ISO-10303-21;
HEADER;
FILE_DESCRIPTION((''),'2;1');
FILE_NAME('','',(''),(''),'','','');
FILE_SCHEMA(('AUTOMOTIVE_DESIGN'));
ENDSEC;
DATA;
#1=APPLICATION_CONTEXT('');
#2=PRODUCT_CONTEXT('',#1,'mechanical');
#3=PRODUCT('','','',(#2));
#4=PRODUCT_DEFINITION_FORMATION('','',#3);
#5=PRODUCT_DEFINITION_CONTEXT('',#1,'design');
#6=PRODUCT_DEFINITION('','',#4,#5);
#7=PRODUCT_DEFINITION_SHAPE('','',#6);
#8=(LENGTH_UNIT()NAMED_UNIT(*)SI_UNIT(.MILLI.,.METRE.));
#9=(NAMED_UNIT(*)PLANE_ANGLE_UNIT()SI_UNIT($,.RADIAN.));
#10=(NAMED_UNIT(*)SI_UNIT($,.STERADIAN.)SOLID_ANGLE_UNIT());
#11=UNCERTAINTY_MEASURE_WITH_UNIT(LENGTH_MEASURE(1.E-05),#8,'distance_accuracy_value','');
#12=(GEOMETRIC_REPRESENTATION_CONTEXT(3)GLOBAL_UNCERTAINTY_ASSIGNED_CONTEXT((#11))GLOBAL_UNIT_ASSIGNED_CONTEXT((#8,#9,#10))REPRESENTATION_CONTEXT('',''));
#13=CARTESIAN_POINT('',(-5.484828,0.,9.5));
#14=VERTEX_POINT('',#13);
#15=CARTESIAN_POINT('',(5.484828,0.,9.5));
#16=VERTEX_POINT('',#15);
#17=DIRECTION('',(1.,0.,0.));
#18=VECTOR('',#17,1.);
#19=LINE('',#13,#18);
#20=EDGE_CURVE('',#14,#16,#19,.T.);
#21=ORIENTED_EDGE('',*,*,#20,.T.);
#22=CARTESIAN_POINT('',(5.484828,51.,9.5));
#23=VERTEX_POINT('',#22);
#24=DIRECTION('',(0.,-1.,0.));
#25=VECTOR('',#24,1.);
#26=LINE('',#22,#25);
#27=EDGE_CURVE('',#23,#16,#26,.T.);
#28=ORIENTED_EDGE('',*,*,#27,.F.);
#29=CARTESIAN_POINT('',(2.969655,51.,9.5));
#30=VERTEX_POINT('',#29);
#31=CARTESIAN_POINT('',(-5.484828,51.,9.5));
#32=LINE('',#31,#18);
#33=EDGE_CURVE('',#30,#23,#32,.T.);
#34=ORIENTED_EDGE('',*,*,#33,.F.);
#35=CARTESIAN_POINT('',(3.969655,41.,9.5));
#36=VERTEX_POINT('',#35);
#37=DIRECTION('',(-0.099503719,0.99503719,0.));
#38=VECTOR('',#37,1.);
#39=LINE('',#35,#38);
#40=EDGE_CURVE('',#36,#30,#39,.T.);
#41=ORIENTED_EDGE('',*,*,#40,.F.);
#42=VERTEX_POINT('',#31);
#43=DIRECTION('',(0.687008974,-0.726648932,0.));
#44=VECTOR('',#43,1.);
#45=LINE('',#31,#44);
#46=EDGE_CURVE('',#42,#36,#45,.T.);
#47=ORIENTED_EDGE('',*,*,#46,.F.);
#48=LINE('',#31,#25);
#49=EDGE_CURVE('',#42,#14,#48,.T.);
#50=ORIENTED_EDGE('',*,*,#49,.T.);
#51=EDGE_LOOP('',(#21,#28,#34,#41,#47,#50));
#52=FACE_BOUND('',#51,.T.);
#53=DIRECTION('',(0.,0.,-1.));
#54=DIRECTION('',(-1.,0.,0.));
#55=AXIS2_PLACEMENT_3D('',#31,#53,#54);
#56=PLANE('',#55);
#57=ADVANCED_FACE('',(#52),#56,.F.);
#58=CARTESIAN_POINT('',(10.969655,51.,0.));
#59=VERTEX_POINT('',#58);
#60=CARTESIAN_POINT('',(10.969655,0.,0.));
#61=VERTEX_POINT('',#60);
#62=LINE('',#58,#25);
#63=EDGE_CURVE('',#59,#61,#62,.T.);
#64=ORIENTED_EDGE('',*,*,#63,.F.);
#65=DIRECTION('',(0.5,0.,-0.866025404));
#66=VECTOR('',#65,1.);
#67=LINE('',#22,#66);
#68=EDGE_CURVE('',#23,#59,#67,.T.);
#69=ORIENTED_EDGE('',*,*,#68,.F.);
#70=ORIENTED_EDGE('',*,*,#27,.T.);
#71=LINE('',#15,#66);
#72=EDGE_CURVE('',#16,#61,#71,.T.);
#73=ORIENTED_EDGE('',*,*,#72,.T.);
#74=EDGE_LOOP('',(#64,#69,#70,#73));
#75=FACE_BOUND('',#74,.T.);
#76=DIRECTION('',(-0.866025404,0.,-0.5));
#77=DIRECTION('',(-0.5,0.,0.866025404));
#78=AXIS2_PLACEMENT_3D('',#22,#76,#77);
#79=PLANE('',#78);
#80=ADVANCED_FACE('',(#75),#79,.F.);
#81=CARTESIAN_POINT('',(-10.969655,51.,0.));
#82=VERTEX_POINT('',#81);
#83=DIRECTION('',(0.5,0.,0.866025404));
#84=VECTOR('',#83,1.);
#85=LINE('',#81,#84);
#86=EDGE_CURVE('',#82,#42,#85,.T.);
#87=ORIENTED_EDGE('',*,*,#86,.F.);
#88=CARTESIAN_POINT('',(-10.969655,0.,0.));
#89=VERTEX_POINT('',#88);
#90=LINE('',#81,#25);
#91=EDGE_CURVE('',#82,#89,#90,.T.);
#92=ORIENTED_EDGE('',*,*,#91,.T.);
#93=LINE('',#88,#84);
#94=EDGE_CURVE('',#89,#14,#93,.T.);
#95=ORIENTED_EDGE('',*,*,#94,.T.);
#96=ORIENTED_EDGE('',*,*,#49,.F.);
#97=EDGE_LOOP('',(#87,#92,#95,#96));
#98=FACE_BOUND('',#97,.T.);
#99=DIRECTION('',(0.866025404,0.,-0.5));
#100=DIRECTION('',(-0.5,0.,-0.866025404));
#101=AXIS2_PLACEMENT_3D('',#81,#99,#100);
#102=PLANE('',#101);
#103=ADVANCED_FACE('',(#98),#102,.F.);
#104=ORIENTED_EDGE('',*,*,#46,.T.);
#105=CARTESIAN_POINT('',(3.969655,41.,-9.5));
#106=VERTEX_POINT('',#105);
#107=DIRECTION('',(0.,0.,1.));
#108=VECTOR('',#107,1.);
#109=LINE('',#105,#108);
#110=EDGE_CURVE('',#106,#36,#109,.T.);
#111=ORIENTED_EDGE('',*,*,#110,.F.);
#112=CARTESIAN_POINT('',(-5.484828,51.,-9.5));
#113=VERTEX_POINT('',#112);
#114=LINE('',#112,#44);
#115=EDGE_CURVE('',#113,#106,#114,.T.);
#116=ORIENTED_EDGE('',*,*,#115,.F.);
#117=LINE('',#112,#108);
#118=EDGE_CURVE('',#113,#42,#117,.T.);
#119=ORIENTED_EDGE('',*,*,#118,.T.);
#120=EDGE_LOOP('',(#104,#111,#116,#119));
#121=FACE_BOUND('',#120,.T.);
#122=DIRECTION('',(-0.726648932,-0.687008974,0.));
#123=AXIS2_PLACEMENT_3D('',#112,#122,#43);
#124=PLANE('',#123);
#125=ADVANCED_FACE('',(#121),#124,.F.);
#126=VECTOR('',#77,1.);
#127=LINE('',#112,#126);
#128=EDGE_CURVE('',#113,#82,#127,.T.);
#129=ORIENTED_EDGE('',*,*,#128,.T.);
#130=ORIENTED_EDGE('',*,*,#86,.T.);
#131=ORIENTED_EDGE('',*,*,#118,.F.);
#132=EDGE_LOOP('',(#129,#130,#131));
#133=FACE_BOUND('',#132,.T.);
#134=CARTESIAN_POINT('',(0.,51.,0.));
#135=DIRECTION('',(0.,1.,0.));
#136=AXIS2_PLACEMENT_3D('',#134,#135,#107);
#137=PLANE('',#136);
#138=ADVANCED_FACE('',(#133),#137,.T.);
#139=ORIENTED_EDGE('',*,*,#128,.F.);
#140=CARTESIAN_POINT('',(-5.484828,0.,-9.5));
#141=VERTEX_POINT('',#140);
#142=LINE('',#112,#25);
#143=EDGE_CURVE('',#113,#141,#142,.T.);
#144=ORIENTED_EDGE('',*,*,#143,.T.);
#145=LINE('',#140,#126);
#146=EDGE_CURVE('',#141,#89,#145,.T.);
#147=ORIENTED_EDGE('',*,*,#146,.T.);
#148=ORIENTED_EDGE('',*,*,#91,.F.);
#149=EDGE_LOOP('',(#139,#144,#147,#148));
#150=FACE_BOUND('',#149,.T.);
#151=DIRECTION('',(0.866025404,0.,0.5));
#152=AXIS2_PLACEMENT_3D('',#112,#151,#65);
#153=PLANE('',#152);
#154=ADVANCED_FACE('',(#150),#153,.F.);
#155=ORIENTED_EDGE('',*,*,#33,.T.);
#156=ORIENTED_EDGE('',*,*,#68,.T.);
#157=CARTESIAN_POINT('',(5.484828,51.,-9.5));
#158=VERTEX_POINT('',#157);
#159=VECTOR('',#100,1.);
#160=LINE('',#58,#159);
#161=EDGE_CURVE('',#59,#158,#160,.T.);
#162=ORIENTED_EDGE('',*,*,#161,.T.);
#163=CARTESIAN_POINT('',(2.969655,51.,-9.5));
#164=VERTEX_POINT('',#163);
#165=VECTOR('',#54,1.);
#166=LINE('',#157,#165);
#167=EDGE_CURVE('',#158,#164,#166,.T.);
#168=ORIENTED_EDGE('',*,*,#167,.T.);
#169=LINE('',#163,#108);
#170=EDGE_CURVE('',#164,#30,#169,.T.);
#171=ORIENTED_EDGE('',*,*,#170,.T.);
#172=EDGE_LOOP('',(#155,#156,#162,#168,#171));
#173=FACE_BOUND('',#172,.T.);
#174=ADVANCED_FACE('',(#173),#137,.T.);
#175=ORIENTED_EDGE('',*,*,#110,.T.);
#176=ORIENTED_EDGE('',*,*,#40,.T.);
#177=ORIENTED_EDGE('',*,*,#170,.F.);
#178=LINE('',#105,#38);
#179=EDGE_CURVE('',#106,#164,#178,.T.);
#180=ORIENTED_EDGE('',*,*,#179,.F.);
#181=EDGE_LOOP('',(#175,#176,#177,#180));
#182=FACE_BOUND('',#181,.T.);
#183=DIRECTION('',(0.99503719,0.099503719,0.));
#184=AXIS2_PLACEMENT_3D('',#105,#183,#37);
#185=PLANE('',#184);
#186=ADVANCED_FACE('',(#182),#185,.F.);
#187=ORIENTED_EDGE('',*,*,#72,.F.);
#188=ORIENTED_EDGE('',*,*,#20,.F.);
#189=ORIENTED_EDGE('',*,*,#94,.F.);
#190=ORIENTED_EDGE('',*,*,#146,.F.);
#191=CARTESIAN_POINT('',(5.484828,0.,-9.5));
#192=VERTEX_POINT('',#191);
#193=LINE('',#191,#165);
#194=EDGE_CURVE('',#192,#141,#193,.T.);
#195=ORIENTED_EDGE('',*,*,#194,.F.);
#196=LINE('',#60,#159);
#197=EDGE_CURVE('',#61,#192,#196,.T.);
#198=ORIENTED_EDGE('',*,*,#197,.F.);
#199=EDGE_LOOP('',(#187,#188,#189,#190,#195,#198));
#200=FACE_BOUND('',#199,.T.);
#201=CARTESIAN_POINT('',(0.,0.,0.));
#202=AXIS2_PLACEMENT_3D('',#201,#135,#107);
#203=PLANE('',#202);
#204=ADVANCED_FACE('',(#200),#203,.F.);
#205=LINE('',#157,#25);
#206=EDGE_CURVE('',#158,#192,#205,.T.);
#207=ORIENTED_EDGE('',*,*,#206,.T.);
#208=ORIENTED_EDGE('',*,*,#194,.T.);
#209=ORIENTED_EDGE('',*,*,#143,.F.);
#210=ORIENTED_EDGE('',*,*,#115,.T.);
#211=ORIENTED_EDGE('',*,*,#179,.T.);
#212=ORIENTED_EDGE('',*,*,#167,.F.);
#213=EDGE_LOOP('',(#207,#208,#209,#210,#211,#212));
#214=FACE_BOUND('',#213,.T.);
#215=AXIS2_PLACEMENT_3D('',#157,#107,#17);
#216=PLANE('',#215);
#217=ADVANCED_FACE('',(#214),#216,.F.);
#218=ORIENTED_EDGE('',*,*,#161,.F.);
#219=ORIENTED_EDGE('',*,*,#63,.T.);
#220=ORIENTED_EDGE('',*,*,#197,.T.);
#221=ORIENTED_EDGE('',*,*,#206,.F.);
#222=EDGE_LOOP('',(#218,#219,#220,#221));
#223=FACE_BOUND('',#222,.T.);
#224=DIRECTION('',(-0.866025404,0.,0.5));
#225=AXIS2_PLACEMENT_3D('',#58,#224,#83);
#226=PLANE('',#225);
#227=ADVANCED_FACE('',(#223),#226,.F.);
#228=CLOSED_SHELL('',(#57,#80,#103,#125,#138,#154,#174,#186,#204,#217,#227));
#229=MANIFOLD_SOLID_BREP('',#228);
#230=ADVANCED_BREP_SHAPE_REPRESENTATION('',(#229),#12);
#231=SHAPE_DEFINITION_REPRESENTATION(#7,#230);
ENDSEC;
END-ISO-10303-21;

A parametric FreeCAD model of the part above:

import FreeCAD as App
import Part
import Sketcher
from FreeCAD import Vector
Q = App.Units.Quantity

doc = App.newDocument("Part")
body = doc.addObject("PartDesign::Body", "Body")

sketch1 = body.newObject("Sketcher::SketchObject", "Sketch")
sketch1.AttachmentSupport = (doc.getObject("XZ_Plane"), [""])
sketch1.MapMode = "FlatFace"
sketch1.addGeometry([
    Part.LineSegment(Vector(-5, 10, 0), Vector(5, 10, 0)),
    Part.LineSegment(Vector(5, 10, 0), Vector(11, 0, 0)),
    Part.LineSegment(Vector(11, 0, 0), Vector(5, -10, 0)),
    Part.LineSegment(Vector(5, -10, 0), Vector(-5, -10, 0)),
    Part.LineSegment(Vector(-5, -10, 0), Vector(-11, 0, 0)),
    Part.LineSegment(Vector(-11, 0, 0), Vector(-5, 10, 0)),
], False)
sketch1.addConstraint([
    Sketcher.Constraint("Coincident", 0, 2, 1, 1),
    Sketcher.Constraint("Coincident", 1, 2, 2, 1),
    Sketcher.Constraint("Coincident", 2, 2, 3, 1),
    Sketcher.Constraint("Coincident", 3, 2, 4, 1),
    Sketcher.Constraint("Coincident", 4, 2, 5, 1),
    Sketcher.Constraint("Coincident", 5, 2, 0, 1),
    Sketcher.Constraint("Horizontal", 0),
    Sketcher.Constraint("Horizontal", 3),
    Sketcher.Constraint("Symmetric", 0, 2, 3, 2, -1, 1),
    Sketcher.Constraint("Symmetric", 1, 2, 4, 2, -1, 1),
    Sketcher.Constraint("PointOnObject", 1, 2, -1),
    Sketcher.Constraint("Parallel", 2, 5),
    Sketcher.Constraint("Vertical", 0, 2, 2, 2),
    Sketcher.Constraint("Angle", 1, Q("-60 deg")),
    Sketcher.Constraint("DistanceY", 2, 2, 0, 2, Q("19 mm")),
    Sketcher.Constraint("DistanceX", 0, 1, 0, 2, Q("10.969655 mm")),
])
pad1 = body.newObject("PartDesign::Pad", "Pad")
pad1.Profile = sketch1
pad1.Length = 51
pad1.Reversed = True

sketch2 = body.newObject("Sketcher::SketchObject", "Sketch001")
sketch2.AttachmentSupport = (doc.getObject("XY_Plane"), [""])
sketch2.MapMode = "FlatFace"
sketch2.addGeometry([
    Part.LineSegment(Vector(-5, 51, 0), Vector(4, 41, 0)),
    Part.LineSegment(Vector(4, 41, 0), Vector(3, 51, 0)),
    Part.LineSegment(Vector(3, 51, 0), Vector(-5, 51, 0)),
], False)
sketch2.addConstraint([
    Sketcher.Constraint("Coincident", 0, 2, 1, 1),
    Sketcher.Constraint("Coincident", 1, 2, 2, 1),
    Sketcher.Constraint("Coincident", 2, 2, 0, 1),
    Sketcher.Constraint("Horizontal", 2),
    Sketcher.Constraint("DistanceY", -1, 1, 0, 2, Q("41 mm")),
    Sketcher.Constraint("DistanceY", -1, 1, 1, 2, Q("51 mm")),
    Sketcher.Constraint("DistanceX", 1, 2, 0, 2, Q("1 mm")),
    Sketcher.Constraint("DistanceX", 2, 2, 2, 1, Q("8.454483 mm")),
    Sketcher.Constraint("DistanceX", -1, 1, 0, 2, Q("3.969655 mm")),
])
pocket1 = body.newObject("PartDesign::Pocket", "Pocket")
pocket1.Profile = sketch2
pocket1.Type = "ThroughAll"
pocket1.Midplane = True

doc.recompute()
